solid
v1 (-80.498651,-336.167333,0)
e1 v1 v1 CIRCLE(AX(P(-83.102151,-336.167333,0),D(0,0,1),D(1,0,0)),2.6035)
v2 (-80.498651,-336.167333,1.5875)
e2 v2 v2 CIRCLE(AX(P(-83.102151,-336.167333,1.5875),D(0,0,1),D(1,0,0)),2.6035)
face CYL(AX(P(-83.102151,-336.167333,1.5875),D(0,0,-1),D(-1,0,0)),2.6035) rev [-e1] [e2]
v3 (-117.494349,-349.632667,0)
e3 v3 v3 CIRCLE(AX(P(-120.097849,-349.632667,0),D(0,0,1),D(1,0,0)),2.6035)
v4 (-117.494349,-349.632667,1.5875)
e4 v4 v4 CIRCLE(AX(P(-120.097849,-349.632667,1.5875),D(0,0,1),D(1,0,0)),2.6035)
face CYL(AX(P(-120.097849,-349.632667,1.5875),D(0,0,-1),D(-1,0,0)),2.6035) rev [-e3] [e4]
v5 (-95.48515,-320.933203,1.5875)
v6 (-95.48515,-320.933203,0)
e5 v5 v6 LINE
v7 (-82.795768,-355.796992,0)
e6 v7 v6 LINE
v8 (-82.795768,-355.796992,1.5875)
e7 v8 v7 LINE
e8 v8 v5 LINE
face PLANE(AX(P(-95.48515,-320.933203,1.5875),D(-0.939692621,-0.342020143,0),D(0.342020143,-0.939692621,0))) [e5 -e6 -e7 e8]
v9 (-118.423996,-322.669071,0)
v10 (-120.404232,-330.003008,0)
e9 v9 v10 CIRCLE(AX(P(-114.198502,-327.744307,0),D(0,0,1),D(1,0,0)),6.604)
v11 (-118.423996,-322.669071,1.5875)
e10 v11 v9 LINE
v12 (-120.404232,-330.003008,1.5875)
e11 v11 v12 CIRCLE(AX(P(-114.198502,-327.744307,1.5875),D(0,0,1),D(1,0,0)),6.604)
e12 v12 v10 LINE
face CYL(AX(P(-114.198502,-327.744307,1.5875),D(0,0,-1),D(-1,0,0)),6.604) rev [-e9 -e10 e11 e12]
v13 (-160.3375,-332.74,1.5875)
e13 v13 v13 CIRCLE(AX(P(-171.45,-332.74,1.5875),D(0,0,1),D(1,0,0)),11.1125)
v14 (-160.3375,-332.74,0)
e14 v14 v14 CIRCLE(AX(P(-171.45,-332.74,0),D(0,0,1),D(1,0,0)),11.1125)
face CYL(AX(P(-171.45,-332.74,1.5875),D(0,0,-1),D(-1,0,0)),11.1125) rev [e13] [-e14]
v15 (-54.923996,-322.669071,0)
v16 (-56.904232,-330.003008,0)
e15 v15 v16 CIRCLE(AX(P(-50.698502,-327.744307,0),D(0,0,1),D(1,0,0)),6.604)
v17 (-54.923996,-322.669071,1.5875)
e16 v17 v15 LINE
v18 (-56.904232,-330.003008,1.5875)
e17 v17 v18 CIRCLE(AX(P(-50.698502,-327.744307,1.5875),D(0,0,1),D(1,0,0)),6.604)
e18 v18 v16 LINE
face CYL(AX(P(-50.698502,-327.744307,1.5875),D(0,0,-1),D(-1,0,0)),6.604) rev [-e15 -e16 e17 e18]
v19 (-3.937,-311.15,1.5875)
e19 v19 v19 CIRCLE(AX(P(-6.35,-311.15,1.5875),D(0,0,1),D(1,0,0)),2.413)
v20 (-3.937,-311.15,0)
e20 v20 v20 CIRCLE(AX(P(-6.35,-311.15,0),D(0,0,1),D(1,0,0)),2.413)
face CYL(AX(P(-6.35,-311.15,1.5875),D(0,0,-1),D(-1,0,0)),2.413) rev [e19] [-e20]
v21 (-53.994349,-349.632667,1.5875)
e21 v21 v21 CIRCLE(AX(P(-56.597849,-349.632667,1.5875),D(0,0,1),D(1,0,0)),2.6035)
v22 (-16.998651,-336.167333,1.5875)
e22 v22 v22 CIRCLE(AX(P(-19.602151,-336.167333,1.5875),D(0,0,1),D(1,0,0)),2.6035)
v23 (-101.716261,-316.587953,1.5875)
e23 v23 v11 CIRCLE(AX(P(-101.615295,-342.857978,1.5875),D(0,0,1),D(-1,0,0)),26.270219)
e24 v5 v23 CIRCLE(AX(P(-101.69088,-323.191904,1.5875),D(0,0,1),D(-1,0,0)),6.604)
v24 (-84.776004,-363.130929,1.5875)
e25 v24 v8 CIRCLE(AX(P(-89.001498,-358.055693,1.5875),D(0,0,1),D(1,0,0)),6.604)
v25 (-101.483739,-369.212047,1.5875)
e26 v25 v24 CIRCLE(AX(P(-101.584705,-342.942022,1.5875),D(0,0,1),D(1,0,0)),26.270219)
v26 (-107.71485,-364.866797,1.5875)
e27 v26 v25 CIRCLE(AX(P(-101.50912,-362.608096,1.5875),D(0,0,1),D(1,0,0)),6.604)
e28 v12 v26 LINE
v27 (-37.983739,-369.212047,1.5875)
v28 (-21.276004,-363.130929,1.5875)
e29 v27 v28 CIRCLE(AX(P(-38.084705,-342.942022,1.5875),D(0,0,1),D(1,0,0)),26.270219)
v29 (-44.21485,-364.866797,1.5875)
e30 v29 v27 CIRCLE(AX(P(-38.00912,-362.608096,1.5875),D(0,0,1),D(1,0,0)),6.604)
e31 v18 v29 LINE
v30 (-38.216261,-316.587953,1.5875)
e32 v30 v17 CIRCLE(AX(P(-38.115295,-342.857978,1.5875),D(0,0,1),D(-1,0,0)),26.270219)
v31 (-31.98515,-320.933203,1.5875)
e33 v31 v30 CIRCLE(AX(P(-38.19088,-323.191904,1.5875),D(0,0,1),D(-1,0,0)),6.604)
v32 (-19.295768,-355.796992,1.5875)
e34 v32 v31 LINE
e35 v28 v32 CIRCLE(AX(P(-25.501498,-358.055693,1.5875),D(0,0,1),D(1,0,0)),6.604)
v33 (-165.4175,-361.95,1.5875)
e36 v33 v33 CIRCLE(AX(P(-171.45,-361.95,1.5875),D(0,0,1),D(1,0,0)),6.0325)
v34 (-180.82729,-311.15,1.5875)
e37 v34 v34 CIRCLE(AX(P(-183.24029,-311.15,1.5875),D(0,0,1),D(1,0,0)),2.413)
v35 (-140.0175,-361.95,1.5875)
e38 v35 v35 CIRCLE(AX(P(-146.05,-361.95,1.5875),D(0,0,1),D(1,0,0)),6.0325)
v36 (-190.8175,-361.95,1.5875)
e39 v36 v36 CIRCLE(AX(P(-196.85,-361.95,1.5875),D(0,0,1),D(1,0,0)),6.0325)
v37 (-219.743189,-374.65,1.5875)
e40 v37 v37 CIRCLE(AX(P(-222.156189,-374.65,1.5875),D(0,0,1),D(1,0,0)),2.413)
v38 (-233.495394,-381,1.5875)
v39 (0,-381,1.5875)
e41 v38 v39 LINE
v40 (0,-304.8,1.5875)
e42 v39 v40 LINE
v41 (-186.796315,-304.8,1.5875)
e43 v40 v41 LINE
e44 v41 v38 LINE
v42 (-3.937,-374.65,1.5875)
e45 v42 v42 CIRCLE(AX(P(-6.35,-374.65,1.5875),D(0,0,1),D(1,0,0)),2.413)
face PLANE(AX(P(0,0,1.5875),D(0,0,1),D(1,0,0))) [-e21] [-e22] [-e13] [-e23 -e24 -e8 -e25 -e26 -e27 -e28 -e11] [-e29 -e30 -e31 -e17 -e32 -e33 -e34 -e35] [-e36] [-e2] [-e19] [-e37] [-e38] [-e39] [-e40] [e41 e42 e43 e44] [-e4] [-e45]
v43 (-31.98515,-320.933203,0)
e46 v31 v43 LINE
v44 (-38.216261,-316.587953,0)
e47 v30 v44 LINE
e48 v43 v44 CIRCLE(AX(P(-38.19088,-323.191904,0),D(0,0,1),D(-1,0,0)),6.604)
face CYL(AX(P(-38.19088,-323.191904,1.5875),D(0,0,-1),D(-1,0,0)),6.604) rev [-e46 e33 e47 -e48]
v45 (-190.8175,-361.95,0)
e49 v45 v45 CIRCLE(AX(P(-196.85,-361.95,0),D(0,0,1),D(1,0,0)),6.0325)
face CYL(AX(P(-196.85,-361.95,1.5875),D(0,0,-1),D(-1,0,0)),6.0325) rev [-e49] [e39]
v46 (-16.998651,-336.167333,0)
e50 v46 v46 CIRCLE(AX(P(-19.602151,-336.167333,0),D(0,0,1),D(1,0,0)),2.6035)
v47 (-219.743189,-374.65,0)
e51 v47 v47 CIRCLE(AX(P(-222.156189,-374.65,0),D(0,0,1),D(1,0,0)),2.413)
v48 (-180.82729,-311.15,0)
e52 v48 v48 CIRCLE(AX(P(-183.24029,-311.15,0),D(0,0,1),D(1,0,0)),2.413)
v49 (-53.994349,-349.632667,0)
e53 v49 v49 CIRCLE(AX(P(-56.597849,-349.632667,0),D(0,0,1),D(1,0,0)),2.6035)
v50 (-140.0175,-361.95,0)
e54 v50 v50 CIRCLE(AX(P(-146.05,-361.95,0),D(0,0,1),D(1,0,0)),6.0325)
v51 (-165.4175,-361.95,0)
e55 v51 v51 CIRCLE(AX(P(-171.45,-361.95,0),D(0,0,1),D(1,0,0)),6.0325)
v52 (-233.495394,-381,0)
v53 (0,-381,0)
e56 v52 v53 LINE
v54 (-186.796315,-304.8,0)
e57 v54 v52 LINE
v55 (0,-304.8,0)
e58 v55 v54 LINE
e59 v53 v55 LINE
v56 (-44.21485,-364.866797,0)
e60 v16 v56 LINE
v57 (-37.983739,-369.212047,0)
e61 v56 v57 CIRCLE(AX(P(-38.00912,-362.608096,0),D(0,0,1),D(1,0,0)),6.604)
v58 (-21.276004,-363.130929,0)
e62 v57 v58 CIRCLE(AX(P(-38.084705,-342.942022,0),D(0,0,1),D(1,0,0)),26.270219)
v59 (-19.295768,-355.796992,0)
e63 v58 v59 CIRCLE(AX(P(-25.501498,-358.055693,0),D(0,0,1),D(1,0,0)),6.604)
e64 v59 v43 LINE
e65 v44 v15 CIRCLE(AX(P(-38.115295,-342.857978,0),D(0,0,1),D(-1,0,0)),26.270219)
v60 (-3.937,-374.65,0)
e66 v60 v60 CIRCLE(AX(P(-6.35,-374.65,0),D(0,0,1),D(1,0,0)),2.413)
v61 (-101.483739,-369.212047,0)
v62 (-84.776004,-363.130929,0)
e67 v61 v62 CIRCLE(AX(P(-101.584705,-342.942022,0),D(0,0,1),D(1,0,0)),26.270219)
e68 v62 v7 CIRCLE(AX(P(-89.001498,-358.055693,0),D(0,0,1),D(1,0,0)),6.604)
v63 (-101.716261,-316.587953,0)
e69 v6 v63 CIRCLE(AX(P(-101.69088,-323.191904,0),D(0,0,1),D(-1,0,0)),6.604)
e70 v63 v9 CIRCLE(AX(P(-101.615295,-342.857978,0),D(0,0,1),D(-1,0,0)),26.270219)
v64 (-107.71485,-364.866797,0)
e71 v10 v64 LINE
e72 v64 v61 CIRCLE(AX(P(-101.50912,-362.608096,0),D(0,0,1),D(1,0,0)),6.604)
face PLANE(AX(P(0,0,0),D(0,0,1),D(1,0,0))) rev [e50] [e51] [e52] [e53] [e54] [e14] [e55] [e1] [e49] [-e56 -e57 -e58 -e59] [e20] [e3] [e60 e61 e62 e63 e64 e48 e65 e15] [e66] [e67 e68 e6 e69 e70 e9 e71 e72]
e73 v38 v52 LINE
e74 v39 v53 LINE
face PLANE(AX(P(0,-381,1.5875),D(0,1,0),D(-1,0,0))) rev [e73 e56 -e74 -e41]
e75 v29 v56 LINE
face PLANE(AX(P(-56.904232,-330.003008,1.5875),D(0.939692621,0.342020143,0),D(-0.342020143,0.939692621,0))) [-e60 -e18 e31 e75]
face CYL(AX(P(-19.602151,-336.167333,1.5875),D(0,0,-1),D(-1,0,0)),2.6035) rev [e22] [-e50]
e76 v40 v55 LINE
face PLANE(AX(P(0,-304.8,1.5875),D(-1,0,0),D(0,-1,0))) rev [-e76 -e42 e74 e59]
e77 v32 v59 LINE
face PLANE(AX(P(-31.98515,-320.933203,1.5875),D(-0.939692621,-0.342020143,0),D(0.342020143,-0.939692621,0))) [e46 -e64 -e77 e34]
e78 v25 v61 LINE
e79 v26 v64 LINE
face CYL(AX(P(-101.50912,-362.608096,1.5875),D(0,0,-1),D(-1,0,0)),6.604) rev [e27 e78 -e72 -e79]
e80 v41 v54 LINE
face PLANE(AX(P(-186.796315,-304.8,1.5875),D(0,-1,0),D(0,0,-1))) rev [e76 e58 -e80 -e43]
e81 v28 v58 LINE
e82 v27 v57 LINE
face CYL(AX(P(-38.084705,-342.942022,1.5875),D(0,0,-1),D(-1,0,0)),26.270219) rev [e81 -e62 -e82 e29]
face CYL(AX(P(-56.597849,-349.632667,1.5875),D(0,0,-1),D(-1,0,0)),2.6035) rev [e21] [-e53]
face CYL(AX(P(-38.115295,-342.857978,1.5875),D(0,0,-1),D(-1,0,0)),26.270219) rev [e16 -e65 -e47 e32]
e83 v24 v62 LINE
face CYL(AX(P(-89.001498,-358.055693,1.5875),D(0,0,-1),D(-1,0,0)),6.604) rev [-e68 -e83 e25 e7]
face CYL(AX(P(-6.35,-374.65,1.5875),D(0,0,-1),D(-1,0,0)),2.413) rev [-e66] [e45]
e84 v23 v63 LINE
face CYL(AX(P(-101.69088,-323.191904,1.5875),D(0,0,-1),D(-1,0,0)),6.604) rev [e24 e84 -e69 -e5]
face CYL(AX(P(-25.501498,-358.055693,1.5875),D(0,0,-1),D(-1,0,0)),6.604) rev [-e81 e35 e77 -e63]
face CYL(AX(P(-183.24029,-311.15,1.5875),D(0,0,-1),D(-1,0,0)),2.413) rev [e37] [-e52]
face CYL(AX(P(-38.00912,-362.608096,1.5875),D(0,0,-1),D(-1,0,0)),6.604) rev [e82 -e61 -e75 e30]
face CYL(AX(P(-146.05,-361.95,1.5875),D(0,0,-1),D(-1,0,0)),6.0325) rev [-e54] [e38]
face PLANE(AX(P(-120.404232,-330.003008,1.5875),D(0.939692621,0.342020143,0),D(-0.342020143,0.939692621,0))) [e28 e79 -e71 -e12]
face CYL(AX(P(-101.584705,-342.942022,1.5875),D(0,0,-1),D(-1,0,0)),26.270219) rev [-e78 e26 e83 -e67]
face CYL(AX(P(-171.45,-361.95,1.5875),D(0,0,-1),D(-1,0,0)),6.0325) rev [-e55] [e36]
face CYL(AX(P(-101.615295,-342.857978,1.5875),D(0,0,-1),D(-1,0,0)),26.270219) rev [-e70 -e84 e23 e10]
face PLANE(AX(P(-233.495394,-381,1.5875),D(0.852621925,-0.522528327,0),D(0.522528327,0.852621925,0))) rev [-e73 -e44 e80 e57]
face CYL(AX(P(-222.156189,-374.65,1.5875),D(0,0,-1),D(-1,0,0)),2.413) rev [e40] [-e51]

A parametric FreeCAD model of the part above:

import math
import FreeCAD as App
import Part
import Sketcher
Q = App.Units.Quantity

doc = App.newDocument("Part")
params = doc.addObject("Spreadsheet::Sheet", "Params")
for row, (alias, value) in enumerate([
    ("sketch1_diameter", "0.19 in"),
    ("sketch1_height", "3 in"),
    ("sketch1_radius", "0.26 in"),
    ("sketch1_diameter2", "0.205 in"),
    ("sketch1_diameter3", "0.475 in"),
    ("pad1_length", "0.0625 in"),
], start=1):
    params.set(f"A{row}", alias)
    params.set(f"B{row}", "=" + value)
    params.setAlias(f"B{row}", alias)

body = doc.addObject("PartDesign::Body", "Body")

sketch1 = body.newObject("Sketcher::SketchObject", "Sketch")
sketch1.AttachmentSupport = (doc.getObject("XY_Plane"), [""])
sketch1.MapMode = "FlatFace"
sketch1.addGeometry(Part.LineSegment(App.Vector(-186.796315, -304.8, 0), App.Vector(-233.495394, -381, 0)), False)
sketch1.addGeometry(Part.LineSegment(App.Vector(-233.495394, -381, 0), App.Vector(0, -381, 0)), False)
sketch1.addGeometry(Part.LineSegment(App.Vector(0, -381, 0), App.Vector(0, -304.8, 0)), False)
sketch1.addGeometry(Part.LineSegment(App.Vector(0, -304.8, 0), App.Vector(-186.796315, -304.8, 0)), False)
sketch1.addGeometry(Part.Circle(App.Vector(-6.35, -374.65, 0), App.Vector(0, 0, 1), 2.413), False)
sketch1.addGeometry(Part.Circle(App.Vector(-56.597849, -349.632667, 0), App.Vector(0, 0, 1), 2.6035), False)
sketch1.addGeometry(Part.ArcOfCircle(Part.Circle(App.Vector(-50.698502, -327.744307, 0), App.Vector(0, 0, 1), 6.604), math.radians(129.779789), math.radians(200)), False)
sketch1.addGeometry(Part.ArcOfCircle(Part.Circle(App.Vector(-38.115295, -342.857978, 0), App.Vector(0, 0, 1), 26.270219), math.radians(90.220211), math.radians(129.779789)), False)
sketch1.addGeometry(Part.ArcOfCircle(Part.Circle(App.Vector(-38.19088, -323.191904, 0), App.Vector(0, 0, 1), 6.604), math.radians(20), math.radians(90.220211)), False)
sketch1.addGeometry(Part.LineSegment(App.Vector(-31.98515, -320.933203, 0), App.Vector(-19.295768, -355.796992, 0)), False)
sketch1.addGeometry(Part.ArcOfCircle(Part.Circle(App.Vector(-25.501498, -358.055693, 0), App.Vector(0, 0, 1), 6.604), math.radians(-50.220211), math.radians(20)), False)
sketch1.addGeometry(Part.ArcOfCircle(Part.Circle(App.Vector(-38.084705, -342.942022, 0), App.Vector(0, 0, 1), 26.270219), math.radians(-89.779789), math.radians(-50.220211)), False)
sketch1.addGeometry(Part.ArcOfCircle(Part.Circle(App.Vector(-38.00912, -362.608096, 0), App.Vector(0, 0, 1), 6.604), math.radians(-160), math.radians(-89.779789)), False)
sketch1.addGeometry(Part.LineSegment(App.Vector(-44.21485, -364.866797, 0), App.Vector(-56.904232, -330.003008, 0)), False)
sketch1.addGeometry(Part.ArcOfCircle(Part.Circle(App.Vector(-114.198502, -327.744307, 0), App.Vector(0, 0, 1), 6.604), math.radians(129.779789), math.radians(200)), False)
sketch1.addGeometry(Part.ArcOfCircle(Part.Circle(App.Vector(-101.615295, -342.857978, 0), App.Vector(0, 0, 1), 26.270219), math.radians(90.220211), math.radians(129.779789)), False)
sketch1.addGeometry(Part.ArcOfCircle(Part.Circle(App.Vector(-101.69088, -323.191904, 0), App.Vector(0, 0, 1), 6.604), math.radians(20), math.radians(90.220211)), False)
sketch1.addGeometry(Part.LineSegment(App.Vector(-95.48515, -320.933203, 0), App.Vector(-82.795768, -355.796992, 0)), False)
sketch1.addGeometry(Part.ArcOfCircle(Part.Circle(App.Vector(-89.001498, -358.055693, 0), App.Vector(0, 0, 1), 6.604), math.radians(-50.220211), math.radians(20)), False)
sketch1.addGeometry(Part.ArcOfCircle(Part.Circle(App.Vector(-101.584705, -342.942022, 0), App.Vector(0, 0, 1), 26.270219), math.radians(-89.779789), math.radians(-50.220211)), False)
sketch1.addGeometry(Part.ArcOfCircle(Part.Circle(App.Vector(-101.50912, -362.608096, 0), App.Vector(0, 0, 1), 6.604), math.radians(-160), math.radians(-89.779789)), False)
sketch1.addGeometry(Part.LineSegment(App.Vector(-107.71485, -364.866797, 0), App.Vector(-120.404232, -330.003008, 0)), False)
sketch1.addGeometry(Part.Circle(App.Vector(-146.05, -361.95, 0), App.Vector(0, 0, 1), 6.0325), False)
sketch1.addGeometry(Part.Circle(App.Vector(-222.156189, -374.65, 0), App.Vector(0, 0, 1), 2.413), False)
sketch1.addGeometry(Part.Circle(App.Vector(-171.45, -361.95, 0), App.Vector(0, 0, 1), 6.0325), False)
sketch1.addGeometry(Part.Circle(App.Vector(-196.85, -361.95, 0), App.Vector(0, 0, 1), 6.0325), False)
sketch1.addGeometry(Part.Circle(App.Vector(-120.097849, -349.632667, 0), App.Vector(0, 0, 1), 2.6035), False)
sketch1.addGeometry(Part.Circle(App.Vector(-19.602151, -336.167333, 0), App.Vector(0, 0, 1), 2.6035), False)
sketch1.addGeometry(Part.Circle(App.Vector(-83.102151, -336.167333, 0), App.Vector(0, 0, 1), 2.6035), False)
sketch1.addGeometry(Part.Circle(App.Vector(-6.35, -311.15, 0), App.Vector(0, 0, 1), 2.413), False)
sketch1.addGeometry(Part.Circle(App.Vector(-171.45, -332.74, 0), App.Vector(0, 0, 1), 11.1125), False)
sketch1.addGeometry(Part.Circle(App.Vector(-183.24029, -311.15, 0), App.Vector(0, 0, 1), 2.413), False)
sketch1.addConstraint(Sketcher.Constraint("Coincident", 0, 2, 1, 1))
sketch1.addConstraint(Sketcher.Constraint("Coincident", 1, 2, 2, 1))
sketch1.addConstraint(Sketcher.Constraint("Coincident", 2, 2, 3, 1))
sketch1.addConstraint(Sketcher.Constraint("Coincident", 3, 2, 0, 1))
sketch1.addConstraint(Sketcher.Constraint("Tangent", 6, 1, 7, 2))
sketch1.addConstraint(Sketcher.Constraint("Tangent", 7, 1, 8, 2))
sketch1.addConstraint(Sketcher.Constraint("Tangent", 8, 1, 9, 1))
sketch1.addConstraint(Sketcher.Constraint("Tangent", 9, 2, 10, 2))
sketch1.addConstraint(Sketcher.Constraint("Tangent", 10, 1, 11, 2))
sketch1.addConstraint(Sketcher.Constraint("Tangent", 11, 1, 12, 2))
sketch1.addConstraint(Sketcher.Constraint("Tangent", 12, 1, 13, 1))
sketch1.addConstraint(Sketcher.Constraint("Tangent", 13, 2, 6, 2))
sketch1.addConstraint(Sketcher.Constraint("Tangent", 14, 1, 15, 2))
sketch1.addConstraint(Sketcher.Constraint("Tangent", 15, 1, 16, 2))
sketch1.addConstraint(Sketcher.Constraint("Tangent", 16, 1, 17, 1))
sketch1.addConstraint(Sketcher.Constraint("Tangent", 17, 2, 18, 2))
sketch1.addConstraint(Sketcher.Constraint("Tangent", 18, 1, 19, 2))
sketch1.addConstraint(Sketcher.Constraint("Tangent", 19, 1, 20, 2))
sketch1.addConstraint(Sketcher.Constraint("Tangent", 20, 1, 21, 1))
sketch1.addConstraint(Sketcher.Constraint("Tangent", 21, 2, 14, 2))
sketch1.addConstraint(Sketcher.Constraint("Horizontal", 1))
sketch1.addConstraint(Sketcher.Constraint("Vertical", 2))
sketch1.addConstraint(Sketcher.Constraint("Horizontal", 3))
sketch1.addConstraint(Sketcher.Constraint("Equal", 6, 8))
sketch1.addConstraint(Sketcher.Constraint("Equal", 8, 10))
sketch1.addConstraint(Sketcher.Constraint("Equal", 7, 11))
sketch1.addConstraint(Sketcher.Constraint("Equal", 10, 12))
sketch1.addConstraint(Sketcher.Constraint("Equal", 12, 14))
sketch1.addConstraint(Sketcher.Constraint("Equal", 11, 15))
sketch1.addConstraint(Sketcher.Constraint("Equal", 14, 16))
sketch1.addConstraint(Sketcher.Constraint("Equal", 16, 18))
sketch1.addConstraint(Sketcher.Constraint("Equal", 15, 19))
sketch1.addConstraint(Sketcher.Constraint("Equal", 18, 20))
sketch1.addConstraint(Sketcher.Constraint("Equal", 4, 23))
sketch1.addConstraint(Sketcher.Constraint("Equal", 22, 24))
sketch1.addConstraint(Sketcher.Constraint("Equal", 24, 25))
sketch1.addConstraint(Sketcher.Constraint("Equal", 5, 26))
sketch1.addConstraint(Sketcher.Constraint("Equal", 26, 27))
sketch1.addConstraint(Sketcher.Constraint("Equal", 27, 28))
sketch1.addConstraint(Sketcher.Constraint("Equal", 23, 29))
sketch1.addConstraint(Sketcher.Constraint("Equal", 29, 31))
sketch1.addConstraint(Sketcher.Constraint("PointOnObject", 1, 2, -2))
sketch1.addConstraint(Sketcher.Constraint("Parallel", 9, 13))
sketch1.addConstraint(Sketcher.Constraint("Parallel", 13, 17))
sketch1.addConstraint(Sketcher.Constraint("Parallel", 17, 21))
sketch1.addConstraint(Sketcher.Constraint("Horizontal", 6, 3, 14, 3))
sketch1.addConstraint(Sketcher.Constraint("Horizontal", 7, 3, 15, 3))
sketch1.addConstraint(Sketcher.Constraint("Horizontal", 8, 3, 16, 3))
sketch1.addConstraint(Sketcher.Constraint("Horizontal", 10, 3, 18, 3))
sketch1.addConstraint(Sketcher.Constraint("Horizontal", 11, 3, 19, 3))
sketch1.addConstraint(Sketcher.Constraint("Horizontal", 4, 3, 23, 3))
sketch1.addConstraint(Sketcher.Constraint("Horizontal", 22, 3, 24, 3))
sketch1.addConstraint(Sketcher.Constraint("Horizontal", 24, 3, 25, 3))
sketch1.addConstraint(Sketcher.Constraint("Horizontal", 5, 3, 26, 3))
sketch1.addConstraint(Sketcher.Constraint("Horizontal", 27, 3, 28, 3))
sketch1.addConstraint(Sketcher.Constraint("Horizontal", 29, 3, 31, 3))
sketch1.addConstraint(Sketcher.Constraint("Vertical", 4, 3, 29, 3))
sketch1.addConstraint(Sketcher.Constraint("Vertical", 24, 3, 30, 3))
sketch1.addConstraint(Sketcher.Constraint("Equal", 9, 13))
sketch1.addConstraint(Sketcher.Constraint("Diameter", 4, Q("0.19 in")))
sketch1.addConstraint(Sketcher.Constraint("DistanceY", 2, 1, 2, 2, Q("3 in")))
sketch1.addConstraint(Sketcher.Constraint("Radius", 6, Q("0.26 in")))
sketch1.addConstraint(Sketcher.Constraint("Diameter", 5, Q("0.205 in")))
sketch1.addConstraint(Sketcher.Constraint("Diameter", 22, Q("0.475 in")))
sketch1.addConstraint(Sketcher.Constraint("Diameter", 30, Q("0.875 in")))
sketch1.addConstraint(Sketcher.Constraint("DistanceY", 0, 2, -1, 1, Q("15 in")))
sketch1.addConstraint(Sketcher.Constraint("Angle", 9, Q("-70 deg")))
sketch1.addConstraint(Sketcher.Constraint("DistanceX", 24, 3, 22, 3, Q("1 in")))
sketch1.addConstraint(Sketcher.Constraint("DistanceX", 25, 3, 24, 3, Q("1 in")))
sketch1.addConstraint(Sketcher.Constraint("DistanceY", 24, 3, 31, 3, Q("2 in")))
sketch1.addConstraint(Sketcher.Constraint("DistanceY", 30, 3, -1, 1, Q("13.1 in")))
sketch1.addConstraint(Sketcher.Constraint("DistanceX", 14, 3, 6, 3, Q("2.5 in")))
sketch1.addConstraint(Sketcher.Constraint("DistanceY", 23, 3, 22, 3, Q("0.5 in")))
sketch1.addConstraint(Sketcher.Constraint("DistanceX", 4, 3, -1, 1, Q("0.25 in")))
sketch1.addConstraint(Sketcher.Constraint("DistanceY", 4, 3, -1, 1, Q("14.75 in")))
sketch1.addConstraint(Sketcher.Constraint("DistanceX", 22, 3, -1, 1, Q("5.75 in")))
sketch1.addConstraint(Sketcher.Constraint("Radius", 7, 26.270219))
sketch1.addConstraint(Sketcher.Constraint("DistanceX", 6, 3, -1, 1, 50.698502))
sketch1.addConstraint(Sketcher.Constraint("DistanceX", 10, 3, -1, 1, 25.501498))
sketch1.addConstraint(Sketcher.Constraint("DistanceX", 28, 3, 5, 3, 26.504302))
sketch1.addConstraint(Sketcher.Constraint("DistanceX", 6, 1, 7, 3, 16.808701))
sketch1.addConstraint(Sketcher.Constraint("DistanceX", 8, 1, 27, 3, 12.382999))
sketch1.addConstraint(Sketcher.Constraint("DistanceX", 5, 3, 12, 1, 12.382999))
sketch1.addConstraint(Sketcher.Constraint("DistanceX", 16, 1, 28, 3, 12.382999))
sketch1.addConstraint(Sketcher.Constraint("DistanceX", 26, 3, 20, 1, 12.382999))
sketch1.addConstraint(Sketcher.Constraint("DistanceX", 1, 1, 1, 2, 233.495394))
sketch1.addConstraint(Sketcher.Constraint("DistanceX", 3, 2, 3, 1, 186.796315))
sketch1.addConstraint(Sketcher.Constraint("DistanceY", 7, 3, -1, 1, 342.857978))
sketch1.addConstraint(Sketcher.Constraint("DistanceX", 23, 3, -1, 1, 222.156189))
sketch1.addConstraint(Sketcher.Constraint("DistanceX", 31, 3, -1, 1, 183.24029))
sketch1.addConstraint(Sketcher.Constraint("DistanceY", 5, 3, 6, 3, 21.88836))
sketch1.addConstraint(Sketcher.Constraint("DistanceY", 11, 3, 27, 3, 6.774689))
sketch1.setExpression("Constraints[59]", "Params.sketch1_diameter")
sketch1.setExpression("Constraints[60]", "Params.sketch1_height")
sketch1.setExpression("Constraints[61]", "Params.sketch1_radius")
sketch1.setExpression("Constraints[62]", "Params.sketch1_diameter2")
sketch1.setExpression("Constraints[63]", "Params.sketch1_diameter3")
pad1 = body.newObject("PartDesign::Pad", "Pad")
pad1.Profile = sketch1
pad1.setExpression("Length", "Params.pad1_length")

doc.recompute()
